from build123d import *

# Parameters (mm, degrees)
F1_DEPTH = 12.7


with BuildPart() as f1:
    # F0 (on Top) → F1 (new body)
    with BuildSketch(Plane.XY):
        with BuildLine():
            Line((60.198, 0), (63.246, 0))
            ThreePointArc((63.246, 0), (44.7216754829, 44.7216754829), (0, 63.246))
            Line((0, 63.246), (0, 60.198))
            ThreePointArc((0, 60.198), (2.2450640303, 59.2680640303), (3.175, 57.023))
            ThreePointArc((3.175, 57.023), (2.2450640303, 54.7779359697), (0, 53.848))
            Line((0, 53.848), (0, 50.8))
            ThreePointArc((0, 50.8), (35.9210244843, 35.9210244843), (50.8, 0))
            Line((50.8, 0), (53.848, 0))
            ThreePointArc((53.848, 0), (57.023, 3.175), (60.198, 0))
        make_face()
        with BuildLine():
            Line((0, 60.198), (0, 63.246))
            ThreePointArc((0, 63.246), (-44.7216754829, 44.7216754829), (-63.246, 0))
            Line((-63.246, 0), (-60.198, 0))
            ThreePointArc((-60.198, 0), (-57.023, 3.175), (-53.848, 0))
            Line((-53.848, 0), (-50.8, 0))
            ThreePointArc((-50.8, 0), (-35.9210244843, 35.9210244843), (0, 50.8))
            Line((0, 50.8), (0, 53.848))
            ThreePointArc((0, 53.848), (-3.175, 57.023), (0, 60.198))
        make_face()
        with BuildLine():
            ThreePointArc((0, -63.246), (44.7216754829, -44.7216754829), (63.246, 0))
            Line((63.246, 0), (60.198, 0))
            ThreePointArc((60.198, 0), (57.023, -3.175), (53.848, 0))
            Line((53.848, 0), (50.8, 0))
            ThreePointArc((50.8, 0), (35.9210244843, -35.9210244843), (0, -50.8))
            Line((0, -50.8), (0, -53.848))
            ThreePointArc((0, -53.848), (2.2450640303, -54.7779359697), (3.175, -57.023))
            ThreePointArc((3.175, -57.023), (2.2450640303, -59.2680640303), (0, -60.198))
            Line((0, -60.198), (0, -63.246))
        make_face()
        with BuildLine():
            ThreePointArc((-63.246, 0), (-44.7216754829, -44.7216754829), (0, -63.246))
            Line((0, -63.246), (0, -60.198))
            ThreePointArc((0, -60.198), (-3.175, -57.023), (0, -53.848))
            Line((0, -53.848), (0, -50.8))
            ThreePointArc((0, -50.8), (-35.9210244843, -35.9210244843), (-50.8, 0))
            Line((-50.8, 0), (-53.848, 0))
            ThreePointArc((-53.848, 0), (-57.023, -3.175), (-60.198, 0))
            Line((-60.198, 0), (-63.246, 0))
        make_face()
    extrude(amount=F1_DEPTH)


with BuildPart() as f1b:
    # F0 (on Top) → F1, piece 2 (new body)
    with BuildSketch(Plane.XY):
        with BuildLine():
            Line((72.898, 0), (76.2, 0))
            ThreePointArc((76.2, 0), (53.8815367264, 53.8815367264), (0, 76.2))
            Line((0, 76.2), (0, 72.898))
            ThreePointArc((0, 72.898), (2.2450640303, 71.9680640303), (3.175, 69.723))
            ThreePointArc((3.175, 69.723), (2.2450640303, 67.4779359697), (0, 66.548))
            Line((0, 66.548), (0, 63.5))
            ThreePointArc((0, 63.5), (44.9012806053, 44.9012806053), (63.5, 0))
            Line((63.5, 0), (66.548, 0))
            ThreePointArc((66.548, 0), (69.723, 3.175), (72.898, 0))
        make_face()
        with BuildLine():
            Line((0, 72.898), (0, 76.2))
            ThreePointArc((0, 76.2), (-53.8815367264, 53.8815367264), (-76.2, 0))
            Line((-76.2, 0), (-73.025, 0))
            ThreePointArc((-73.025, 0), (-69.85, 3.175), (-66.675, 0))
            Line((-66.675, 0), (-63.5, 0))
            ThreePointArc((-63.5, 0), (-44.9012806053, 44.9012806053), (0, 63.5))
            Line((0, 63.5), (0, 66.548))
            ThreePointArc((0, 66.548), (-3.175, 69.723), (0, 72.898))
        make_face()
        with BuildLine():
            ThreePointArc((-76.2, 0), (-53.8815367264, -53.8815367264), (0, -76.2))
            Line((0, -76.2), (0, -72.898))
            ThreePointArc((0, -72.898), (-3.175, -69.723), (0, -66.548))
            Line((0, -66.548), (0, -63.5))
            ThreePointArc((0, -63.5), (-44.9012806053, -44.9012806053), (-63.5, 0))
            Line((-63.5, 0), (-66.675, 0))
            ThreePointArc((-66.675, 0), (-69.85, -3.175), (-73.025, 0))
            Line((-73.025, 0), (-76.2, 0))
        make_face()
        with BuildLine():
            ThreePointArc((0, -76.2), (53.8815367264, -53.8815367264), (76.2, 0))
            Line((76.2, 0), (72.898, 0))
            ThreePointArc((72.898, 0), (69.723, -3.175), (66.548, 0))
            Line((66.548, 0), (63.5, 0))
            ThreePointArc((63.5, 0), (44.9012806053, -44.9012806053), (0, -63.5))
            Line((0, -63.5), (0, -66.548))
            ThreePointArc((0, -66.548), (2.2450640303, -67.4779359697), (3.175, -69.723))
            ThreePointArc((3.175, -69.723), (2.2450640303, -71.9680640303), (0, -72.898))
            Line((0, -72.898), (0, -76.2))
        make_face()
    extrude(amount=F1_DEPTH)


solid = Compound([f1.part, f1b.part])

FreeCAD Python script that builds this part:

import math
import FreeCAD as App
import Part
import Sketcher
Q = App.Units.Quantity

doc = App.newDocument("Part")
body = doc.addObject("PartDesign::Body", "Body")

# Sketch on XY plane
sketch1 = body.newObject("Sketcher::SketchObject", "Sketch")
sketch1.AttachmentSupport = (doc.getObject("XY_Plane"), [""])
sketch1.MapMode = "FlatFace"
sketch1.addGeometry([
    Part.ArcOfCircle(Part.Circle(App.Vector(0, 0, 0), App.Vector(0, 0, 1), 63.2), math.radians(0), math.radians(90)),  # 0
    Part.ArcOfCircle(Part.Circle(App.Vector(0, 0, 0), App.Vector(0, 0, 1), 63.2), math.radians(90), math.radians(180)),  # 1
    Part.ArcOfCircle(Part.Circle(App.Vector(0, 0, 0), App.Vector(0, 0, 1), 63.2), math.radians(180), math.radians(270)),  # 2
    Part.ArcOfCircle(Part.Circle(App.Vector(0, 0, 0), App.Vector(0, 0, 1), 63.2), math.radians(-90), math.radians(0)),  # 3
    Part.Circle(App.Vector(-57, 0, 0), App.Vector(0, 0, 1), 3.2),  # 4
    Part.ArcOfCircle(Part.Circle(App.Vector(0, 0, 0), App.Vector(0, 0, 1), 50.8), math.radians(90), math.radians(180)),  # 5
    Part.ArcOfCircle(Part.Circle(App.Vector(0, 0, 0), App.Vector(0, 0, 1), 50.8), math.radians(0), math.radians(90)),  # 6
    Part.ArcOfCircle(Part.Circle(App.Vector(0, 0, 0), App.Vector(0, 0, 1), 50.8), math.radians(-90), math.radians(0)),  # 7
    Part.ArcOfCircle(Part.Circle(App.Vector(0, 0, 0), App.Vector(0, 0, 1), 50.8), math.radians(180), math.radians(270)),  # 8
    Part.ArcOfCircle(Part.Circle(App.Vector(0, -57, 0), App.Vector(0, 0, 1), 3.2), math.radians(0), math.radians(90)),  # 9
    Part.ArcOfCircle(Part.Circle(App.Vector(0, -57, 0), App.Vector(0, 0, 1), 3.2), math.radians(-90), math.radians(0)),  # 10
    Part.ArcOfCircle(Part.Circle(App.Vector(0, -57, 0), App.Vector(0, 0, 1), 3.2), math.radians(90), math.radians(270)),  # 11
    Part.Circle(App.Vector(57, 0, 0), App.Vector(0, 0, 1), 3.2),  # 12
    Part.ArcOfCircle(Part.Circle(App.Vector(0, 57, 0), App.Vector(0, 0, 1), 3.2), math.radians(0), math.radians(90)),  # 13
    Part.ArcOfCircle(Part.Circle(App.Vector(0, 57, 0), App.Vector(0, 0, 1), 3.2), math.radians(-90), math.radians(0)),  # 14
    Part.ArcOfCircle(Part.Circle(App.Vector(0, 57, 0), App.Vector(0, 0, 1), 3.2), math.radians(90), math.radians(270)),  # 15
], False)
sketch1.addConstraint([
    Sketcher.Constraint("Tangent", 0, 2, 1, 1),
    Sketcher.Constraint("Tangent", 1, 2, 2, 1),
    Sketcher.Constraint("Tangent", 2, 2, 3, 1),
    Sketcher.Constraint("Tangent", 3, 2, 0, 1),
    Sketcher.Constraint("Tangent", 5, 1, 6, 2),
    Sketcher.Constraint("Tangent", 6, 1, 7, 2),
    Sketcher.Constraint("Tangent", 7, 1, 8, 2),
    Sketcher.Constraint("Tangent", 8, 1, 5, 2),
    Sketcher.Constraint("Tangent", 9, 1, 10, 2),
    Sketcher.Constraint("Tangent", 10, 1, 11, 2),
    Sketcher.Constraint("Tangent", 11, 1, 9, 2),
    Sketcher.Constraint("Tangent", 13, 1, 14, 2),
    Sketcher.Constraint("Tangent", 14, 1, 15, 2),
    Sketcher.Constraint("Tangent", 15, 1, 13, 2),
    Sketcher.Constraint("Coincident", 0, 3, -1, 1),
    Sketcher.Constraint("Coincident", 5, 3, -1, 1),
    Sketcher.Constraint("Equal", 0, 1),
    Sketcher.Constraint("Equal", 5, 6),
    Sketcher.Constraint("Equal", 4, 9),
    Sketcher.Constraint("Equal", 11, 12),
    Sketcher.Constraint("Equal", 12, 13),
    Sketcher.Constraint("Symmetric", 4, 3, 12, 3, -1, 1),
    Sketcher.Constraint("Symmetric", 9, 3, 13, 3, -1, 1),
    Sketcher.Constraint("Symmetric", 9, 1, 13, 1, -1),
    Sketcher.Constraint("PointOnObject", 4, 3, -1),
    Sketcher.Constraint("PointOnObject", 0, 2, -2),
    Sketcher.Constraint("PointOnObject", 1, 2, -1),
    Sketcher.Constraint("PointOnObject", 2, 2, -2),
    Sketcher.Constraint("PointOnObject", 3, 2, -1),
    Sketcher.Constraint("PointOnObject", 5, 1, -2),
    Sketcher.Constraint("PointOnObject", 6, 1, -1),
    Sketcher.Constraint("PointOnObject", 7, 1, -2),
    Sketcher.Constraint("PointOnObject", 8, 1, -1),
    Sketcher.Constraint("PointOnObject", 10, 1, -2),
    Sketcher.Constraint("PointOnObject", 11, 1, -2),
    Sketcher.Constraint("PointOnObject", 14, 1, -2),
    Sketcher.Constraint("PointOnObject", 15, 1, -2),
    Sketcher.Constraint("Horizontal", 11, 3, 9, 1),
    Sketcher.Constraint("Radius", 5, Q("2 in")),
    Sketcher.Constraint("Diameter", 4, Q("0.25 in")),
    Sketcher.Constraint("Radius", 0, Q("2.49 in")),
    Sketcher.Constraint("DistanceY", 10, 1, -1, 1, Q("2.37 in")),
    Sketcher.Constraint("DistanceX", 4, 3, -1, 1, Q("2.245 in")),
])
pad1 = body.newObject("PartDesign::Pad", "Pad")
pad1.Profile = sketch1
pad1.Length = Q("0.5 in")
body2 = doc.addObject("PartDesign::Body", "Body001")

# Sketch on XY plane
sketch2 = body2.newObject("Sketcher::SketchObject", "Sketch001")
sketch2.AttachmentSupport = (doc.getObject("XY_Plane001"), [""])
sketch2.MapMode = "FlatFace"
sketch2.addGeometry([
    Part.ArcOfCircle(Part.Circle(App.Vector(0, 0, 0), App.Vector(0, 0, 1), 76.2), math.radians(0), math.radians(90)),  # 0
    Part.ArcOfCircle(Part.Circle(App.Vector(0, 0, 0), App.Vector(0, 0, 1), 76.2), math.radians(90), math.radians(180)),  # 1
    Part.ArcOfCircle(Part.Circle(App.Vector(0, 0, 0), App.Vector(0, 0, 1), 76.2), math.radians(180), math.radians(270)),  # 2
    Part.ArcOfCircle(Part.Circle(App.Vector(0, 0, 0), App.Vector(0, 0, 1), 76.2), math.radians(-90), math.radians(0)),  # 3
    Part.ArcOfCircle(Part.Circle(App.Vector(0, -69.7, 0), App.Vector(0, 0, 1), 3.2), math.radians(90), math.radians(270)),  # 4
    Part.ArcOfCircle(Part.Circle(App.Vector(0, -69.7, 0), App.Vector(0, 0, 1), 3.2), math.radians(0), math.radians(90)),  # 5
    Part.ArcOfCircle(Part.Circle(App.Vector(0, -69.7, 0), App.Vector(0, 0, 1), 3.2), math.radians(-90), math.radians(0)),  # 6
    Part.ArcOfCircle(Part.Circle(App.Vector(0, 0, 0), App.Vector(0, 0, 1), 63.5), math.radians(180), math.radians(270)),  # 7
    Part.ArcOfCircle(Part.Circle(App.Vector(0, 0, 0), App.Vector(0, 0, 1), 63.5), math.radians(90), math.radians(180)),  # 8
    Part.ArcOfCircle(Part.Circle(App.Vector(0, 0, 0), App.Vector(0, 0, 1), 63.5), math.radians(0), math.radians(90)),  # 9
    Part.ArcOfCircle(Part.Circle(App.Vector(0, 0, 0), App.Vector(0, 0, 1), 63.5), math.radians(-90), math.radians(0)),  # 10
    Part.Circle(App.Vector(69.7, 0, 0), App.Vector(0, 0, 1), 3.2),  # 11
    Part.Circle(App.Vector(-69.8, 0, 0), App.Vector(0, 0, 1), 3.2),  # 12
    Part.ArcOfCircle(Part.Circle(App.Vector(0, 69.7, 0), App.Vector(0, 0, 1), 3.2), math.radians(0), math.radians(90)),  # 13
    Part.ArcOfCircle(Part.Circle(App.Vector(0, 69.7, 0), App.Vector(0, 0, 1), 3.2), math.radians(-90), math.radians(0)),  # 14
    Part.ArcOfCircle(Part.Circle(App.Vector(0, 69.7, 0), App.Vector(0, 0, 1), 3.2), math.radians(90), math.radians(270)),  # 15
], False)
sketch2.addConstraint([
    Sketcher.Constraint("Tangent", 0, 2, 1, 1),
    Sketcher.Constraint("Tangent", 1, 2, 2, 1),
    Sketcher.Constraint("Tangent", 2, 2, 3, 1),
    Sketcher.Constraint("Tangent", 3, 2, 0, 1),
    Sketcher.Constraint("Tangent", 4, 1, 5, 2),
    Sketcher.Constraint("Tangent", 5, 1, 6, 2),
    Sketcher.Constraint("Tangent", 6, 1, 4, 2),
    Sketcher.Constraint("Tangent", 7, 1, 8, 2),
    Sketcher.Constraint("Tangent", 8, 1, 9, 2),
    Sketcher.Constraint("Tangent", 9, 1, 10, 2),
    Sketcher.Constraint("Tangent", 10, 1, 7, 2),
    Sketcher.Constraint("Tangent", 13, 1, 14, 2),
    Sketcher.Constraint("Tangent", 14, 1, 15, 2),
    Sketcher.Constraint("Tangent", 15, 1, 13, 2),
    Sketcher.Constraint("Coincident", 0, 3, -1, 1),
    Sketcher.Constraint("Coincident", 7, 3, -1, 1),
    Sketcher.Constraint("Equal", 0, 1),
    Sketcher.Constraint("Equal", 7, 8),
    Sketcher.Constraint("Equal", 6, 11),
    Sketcher.Constraint("Equal", 11, 12),
    Sketcher.Constraint("Equal", 12, 13),
    Sketcher.Constraint("Symmetric", 4, 3, 13, 3, -1, 1),
    Sketcher.Constraint("Symmetric", 5, 1, 13, 1, -1),
    Sketcher.Constraint("PointOnObject", 11, 3, -1),
    Sketcher.Constraint("PointOnObject", 12, 3, -1),
    Sketcher.Constraint("PointOnObject", 0, 2, -2),
    Sketcher.Constraint("PointOnObject", 1, 2, -1),
    Sketcher.Constraint("PointOnObject", 2, 2, -2),
    Sketcher.Constraint("PointOnObject", 3, 2, -1),
    Sketcher.Constraint("PointOnObject", 4, 1, -2),
    Sketcher.Constraint("PointOnObject", 6, 1, -2),
    Sketcher.Constraint("PointOnObject", 7, 1, -1),
    Sketcher.Constraint("PointOnObject", 8, 1, -2),
    Sketcher.Constraint("PointOnObject", 9, 1, -1),
    Sketcher.Constraint("PointOnObject", 10, 1, -2),
    Sketcher.Constraint("PointOnObject", 14, 1, -2),
    Sketcher.Constraint("PointOnObject", 15, 1, -2),
    Sketcher.Constraint("Horizontal", 6, 3, 5, 1),
    Sketcher.Constraint("Radius", 0, Q("3 in")),
    Sketcher.Constraint("Radius", 7, Q("2.5 in")),
    Sketcher.Constraint("Diameter", 11, Q("0.25 in")),
    Sketcher.Constraint("DistanceX", 12, 3, -1, 1, Q("2.75 in")),
    Sketcher.Constraint("DistanceY", 4, 1, -1, 1, Q("2.62 in")),
    Sketcher.Constraint("DistanceX", -1, 1, 11, 3, Q("2.745 in")),
])
pad2 = body2.newObject("PartDesign::Pad", "Pad001")
pad2.Profile = sketch2
pad2.Length = Q("0.5 in")

doc.recompute()
